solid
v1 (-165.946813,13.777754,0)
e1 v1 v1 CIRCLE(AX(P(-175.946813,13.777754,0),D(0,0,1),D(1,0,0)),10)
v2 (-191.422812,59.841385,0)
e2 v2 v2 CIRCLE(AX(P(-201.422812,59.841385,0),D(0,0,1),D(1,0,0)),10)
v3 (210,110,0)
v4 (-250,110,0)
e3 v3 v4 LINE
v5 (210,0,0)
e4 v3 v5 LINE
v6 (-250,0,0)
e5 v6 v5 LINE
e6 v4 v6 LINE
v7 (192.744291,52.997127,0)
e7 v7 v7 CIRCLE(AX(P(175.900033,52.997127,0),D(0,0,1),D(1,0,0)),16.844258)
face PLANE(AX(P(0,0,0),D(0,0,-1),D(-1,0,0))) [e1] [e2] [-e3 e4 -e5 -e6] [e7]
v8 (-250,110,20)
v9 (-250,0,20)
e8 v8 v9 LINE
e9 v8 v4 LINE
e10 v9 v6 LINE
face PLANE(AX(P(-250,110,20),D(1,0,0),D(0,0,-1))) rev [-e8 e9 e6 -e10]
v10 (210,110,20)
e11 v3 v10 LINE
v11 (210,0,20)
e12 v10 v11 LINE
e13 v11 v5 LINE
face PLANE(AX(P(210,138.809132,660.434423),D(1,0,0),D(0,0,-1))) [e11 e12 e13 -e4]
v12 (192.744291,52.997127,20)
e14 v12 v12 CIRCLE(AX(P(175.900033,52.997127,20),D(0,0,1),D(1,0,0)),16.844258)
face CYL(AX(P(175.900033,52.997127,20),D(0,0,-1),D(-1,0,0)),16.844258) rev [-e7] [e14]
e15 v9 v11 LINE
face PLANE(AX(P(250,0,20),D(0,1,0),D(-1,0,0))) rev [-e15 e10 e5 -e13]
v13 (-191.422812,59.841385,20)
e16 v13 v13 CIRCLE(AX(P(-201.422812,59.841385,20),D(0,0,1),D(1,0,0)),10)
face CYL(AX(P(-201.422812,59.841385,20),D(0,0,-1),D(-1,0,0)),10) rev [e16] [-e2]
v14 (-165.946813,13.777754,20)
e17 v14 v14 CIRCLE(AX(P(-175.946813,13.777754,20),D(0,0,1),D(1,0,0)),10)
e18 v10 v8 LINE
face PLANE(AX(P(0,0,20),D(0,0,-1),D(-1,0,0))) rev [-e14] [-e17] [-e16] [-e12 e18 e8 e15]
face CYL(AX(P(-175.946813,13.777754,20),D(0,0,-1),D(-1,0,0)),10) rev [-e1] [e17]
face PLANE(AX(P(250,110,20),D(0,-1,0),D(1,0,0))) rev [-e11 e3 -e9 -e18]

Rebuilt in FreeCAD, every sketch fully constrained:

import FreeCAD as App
import Part
import Sketcher

V = App.Vector
Q = App.Units.Quantity

doc = App.newDocument("Part")
body = doc.addObject("PartDesign::Body", "Body")

sketch1 = doc.addObject("Sketcher::SketchObject", "Sketch")
body.addObject(sketch1)
sketch1.AttachmentSupport = (doc.XY_Plane, [""])
sketch1.MapMode = "FlatFace"
sketch1.addGeometry(Part.LineSegment(V(-250, 110, 0), V(-250, 0, 0)), False)
sketch1.addGeometry(Part.LineSegment(V(-250, 0, 0), V(250, 0, 0)), False)
sketch1.addGeometry(Part.LineSegment(V(250, 0, 0), V(250, 110, 0)), False)
sketch1.addGeometry(Part.LineSegment(V(250, 110, 0), V(-250, 110, 0)), False)
sketch1.addGeometry(Part.Circle(V(-176, 14, 0), V(0, 0, 1), 10), False)
sketch1.addGeometry(Part.Circle(V(-201, 60, 0), V(0, 0, 1), 10), False)
sketch1.addGeometry(Part.Circle(V(176, 53, 0), V(0, 0, 1), 17), False)
sketch1.addConstraint(Sketcher.Constraint("Coincident", 0, 2, 1, 1))
sketch1.addConstraint(Sketcher.Constraint("Coincident", 1, 2, 2, 1))
sketch1.addConstraint(Sketcher.Constraint("Coincident", 2, 2, 3, 1))
sketch1.addConstraint(Sketcher.Constraint("Coincident", 3, 2, 0, 1))
sketch1.addConstraint(Sketcher.Constraint("Vertical", 0))
sketch1.addConstraint(Sketcher.Constraint("Horizontal", 1))
sketch1.addConstraint(Sketcher.Constraint("Vertical", 2))
sketch1.addConstraint(Sketcher.Constraint("Horizontal", 3))
sketch1.addConstraint(Sketcher.Constraint("Equal", 4, 5))
sketch1.addConstraint(Sketcher.Constraint("Symmetric", 0, 2, 1, 2, -1, 1))
sketch1.addConstraint(Sketcher.Constraint("Diameter", 4, Q("20 mm")))
sketch1.addConstraint(Sketcher.Constraint("DistanceX", 1, 1, 1, 2, Q("500 mm")))
sketch1.addConstraint(Sketcher.Constraint("DistanceY", 0, 2, 0, 1, Q("110 mm")))
sketch1.addConstraint(Sketcher.Constraint("Diameter", 6, Q("33.688516 mm")))
sketch1.addConstraint(Sketcher.Constraint("DistanceX", 5, 3, 4, 3, Q("25.475999 mm")))
sketch1.addConstraint(Sketcher.Constraint("DistanceX", 5, 3, -1, 1, Q("201.422812 mm")))
sketch1.addConstraint(Sketcher.Constraint("DistanceY", 4, 3, 5, 3, Q("46.06363 mm")))
sketch1.addConstraint(Sketcher.Constraint("DistanceY", 6, 3, 5, 3, Q("6.844258 mm")))
sketch1.addConstraint(Sketcher.Constraint("DistanceY", -1, 1, 4, 3, Q("13.777754 mm")))
sketch1.addConstraint(Sketcher.Constraint("DistanceX", -1, 1, 6, 3, Q("175.900033 mm")))
pad1 = doc.addObject("PartDesign::Pad", "Pad")
body.addObject(pad1)
pad1.Profile = sketch1
pad1.Length = 20

sketch2 = doc.addObject("Sketcher::SketchObject", "Sketch001")
body.addObject(sketch2)
sketch2.AttachmentSupport = (doc.XY_Plane, [""])
sketch2.MapMode = "FlatFace"
sketch2.AttachmentOffset = App.Placement(V(0, 0, 20), App.Rotation())
sketch2.addGeometry(Part.LineSegment(V(1298, 139, 0), V(210, 139, 0)), False)
sketch2.addGeometry(Part.LineSegment(V(210, 139, 0), V(210, -1176, 0)), False)
sketch2.addGeometry(Part.LineSegment(V(210, -1176, 0), V(1825, -2512, 0)), False)
sketch2.addGeometry(Part.LineSegment(V(1825, -2512, 0), V(2912, -1197, 0)), False)
sketch2.addGeometry(Part.LineSegment(V(2912, -1197, 0), V(1298, 139, 0)), False)
sketch2.addConstraint(Sketcher.Constraint("Coincident", 0, 2, 1, 1))
sketch2.addConstraint(Sketcher.Constraint("Coincident", 1, 2, 2, 1))
sketch2.addConstraint(Sketcher.Constraint("Coincident", 2, 2, 3, 1))
sketch2.addConstraint(Sketcher.Constraint("Coincident", 3, 2, 4, 1))
sketch2.addConstraint(Sketcher.Constraint("Coincident", 4, 2, 0, 1))
sketch2.addConstraint(Sketcher.Constraint("Horizontal", 0))
sketch2.addConstraint(Sketcher.Constraint("Vertical", 1))
sketch2.addConstraint(Sketcher.Constraint("Perpendicular", 2, 3))
sketch2.addConstraint(Sketcher.Constraint("Perpendicular", 3, 4))
sketch2.addConstraint(Sketcher.Constraint("Equal", 2, 4))
sketch2.addConstraint(Sketcher.Constraint("DistanceX", -1, 1, 0, 2, Q("210 mm")))
sketch2.addConstraint(Sketcher.Constraint("DistanceY", 1, 2, 1, 1, Q("1314.523699 mm")))
sketch2.addConstraint(Sketcher.Constraint("Distance", 3, Q("1706.26098 mm")))
sketch2.addConstraint(Sketcher.Constraint("DistanceX", -1, 1, 3, 2, Q("2912.327811 mm")))
sketch2.addConstraint(Sketcher.Constraint("DistanceY", -1, 1, 0, 2, Q("138.809132 mm")))
pocket1 = doc.addObject("PartDesign::Pocket", "Pocket")
body.addObject(pocket1)
pocket1.Profile = sketch2
pocket1.Type = "ThroughAll"
pocket1.Midplane = True

doc.recompute()
